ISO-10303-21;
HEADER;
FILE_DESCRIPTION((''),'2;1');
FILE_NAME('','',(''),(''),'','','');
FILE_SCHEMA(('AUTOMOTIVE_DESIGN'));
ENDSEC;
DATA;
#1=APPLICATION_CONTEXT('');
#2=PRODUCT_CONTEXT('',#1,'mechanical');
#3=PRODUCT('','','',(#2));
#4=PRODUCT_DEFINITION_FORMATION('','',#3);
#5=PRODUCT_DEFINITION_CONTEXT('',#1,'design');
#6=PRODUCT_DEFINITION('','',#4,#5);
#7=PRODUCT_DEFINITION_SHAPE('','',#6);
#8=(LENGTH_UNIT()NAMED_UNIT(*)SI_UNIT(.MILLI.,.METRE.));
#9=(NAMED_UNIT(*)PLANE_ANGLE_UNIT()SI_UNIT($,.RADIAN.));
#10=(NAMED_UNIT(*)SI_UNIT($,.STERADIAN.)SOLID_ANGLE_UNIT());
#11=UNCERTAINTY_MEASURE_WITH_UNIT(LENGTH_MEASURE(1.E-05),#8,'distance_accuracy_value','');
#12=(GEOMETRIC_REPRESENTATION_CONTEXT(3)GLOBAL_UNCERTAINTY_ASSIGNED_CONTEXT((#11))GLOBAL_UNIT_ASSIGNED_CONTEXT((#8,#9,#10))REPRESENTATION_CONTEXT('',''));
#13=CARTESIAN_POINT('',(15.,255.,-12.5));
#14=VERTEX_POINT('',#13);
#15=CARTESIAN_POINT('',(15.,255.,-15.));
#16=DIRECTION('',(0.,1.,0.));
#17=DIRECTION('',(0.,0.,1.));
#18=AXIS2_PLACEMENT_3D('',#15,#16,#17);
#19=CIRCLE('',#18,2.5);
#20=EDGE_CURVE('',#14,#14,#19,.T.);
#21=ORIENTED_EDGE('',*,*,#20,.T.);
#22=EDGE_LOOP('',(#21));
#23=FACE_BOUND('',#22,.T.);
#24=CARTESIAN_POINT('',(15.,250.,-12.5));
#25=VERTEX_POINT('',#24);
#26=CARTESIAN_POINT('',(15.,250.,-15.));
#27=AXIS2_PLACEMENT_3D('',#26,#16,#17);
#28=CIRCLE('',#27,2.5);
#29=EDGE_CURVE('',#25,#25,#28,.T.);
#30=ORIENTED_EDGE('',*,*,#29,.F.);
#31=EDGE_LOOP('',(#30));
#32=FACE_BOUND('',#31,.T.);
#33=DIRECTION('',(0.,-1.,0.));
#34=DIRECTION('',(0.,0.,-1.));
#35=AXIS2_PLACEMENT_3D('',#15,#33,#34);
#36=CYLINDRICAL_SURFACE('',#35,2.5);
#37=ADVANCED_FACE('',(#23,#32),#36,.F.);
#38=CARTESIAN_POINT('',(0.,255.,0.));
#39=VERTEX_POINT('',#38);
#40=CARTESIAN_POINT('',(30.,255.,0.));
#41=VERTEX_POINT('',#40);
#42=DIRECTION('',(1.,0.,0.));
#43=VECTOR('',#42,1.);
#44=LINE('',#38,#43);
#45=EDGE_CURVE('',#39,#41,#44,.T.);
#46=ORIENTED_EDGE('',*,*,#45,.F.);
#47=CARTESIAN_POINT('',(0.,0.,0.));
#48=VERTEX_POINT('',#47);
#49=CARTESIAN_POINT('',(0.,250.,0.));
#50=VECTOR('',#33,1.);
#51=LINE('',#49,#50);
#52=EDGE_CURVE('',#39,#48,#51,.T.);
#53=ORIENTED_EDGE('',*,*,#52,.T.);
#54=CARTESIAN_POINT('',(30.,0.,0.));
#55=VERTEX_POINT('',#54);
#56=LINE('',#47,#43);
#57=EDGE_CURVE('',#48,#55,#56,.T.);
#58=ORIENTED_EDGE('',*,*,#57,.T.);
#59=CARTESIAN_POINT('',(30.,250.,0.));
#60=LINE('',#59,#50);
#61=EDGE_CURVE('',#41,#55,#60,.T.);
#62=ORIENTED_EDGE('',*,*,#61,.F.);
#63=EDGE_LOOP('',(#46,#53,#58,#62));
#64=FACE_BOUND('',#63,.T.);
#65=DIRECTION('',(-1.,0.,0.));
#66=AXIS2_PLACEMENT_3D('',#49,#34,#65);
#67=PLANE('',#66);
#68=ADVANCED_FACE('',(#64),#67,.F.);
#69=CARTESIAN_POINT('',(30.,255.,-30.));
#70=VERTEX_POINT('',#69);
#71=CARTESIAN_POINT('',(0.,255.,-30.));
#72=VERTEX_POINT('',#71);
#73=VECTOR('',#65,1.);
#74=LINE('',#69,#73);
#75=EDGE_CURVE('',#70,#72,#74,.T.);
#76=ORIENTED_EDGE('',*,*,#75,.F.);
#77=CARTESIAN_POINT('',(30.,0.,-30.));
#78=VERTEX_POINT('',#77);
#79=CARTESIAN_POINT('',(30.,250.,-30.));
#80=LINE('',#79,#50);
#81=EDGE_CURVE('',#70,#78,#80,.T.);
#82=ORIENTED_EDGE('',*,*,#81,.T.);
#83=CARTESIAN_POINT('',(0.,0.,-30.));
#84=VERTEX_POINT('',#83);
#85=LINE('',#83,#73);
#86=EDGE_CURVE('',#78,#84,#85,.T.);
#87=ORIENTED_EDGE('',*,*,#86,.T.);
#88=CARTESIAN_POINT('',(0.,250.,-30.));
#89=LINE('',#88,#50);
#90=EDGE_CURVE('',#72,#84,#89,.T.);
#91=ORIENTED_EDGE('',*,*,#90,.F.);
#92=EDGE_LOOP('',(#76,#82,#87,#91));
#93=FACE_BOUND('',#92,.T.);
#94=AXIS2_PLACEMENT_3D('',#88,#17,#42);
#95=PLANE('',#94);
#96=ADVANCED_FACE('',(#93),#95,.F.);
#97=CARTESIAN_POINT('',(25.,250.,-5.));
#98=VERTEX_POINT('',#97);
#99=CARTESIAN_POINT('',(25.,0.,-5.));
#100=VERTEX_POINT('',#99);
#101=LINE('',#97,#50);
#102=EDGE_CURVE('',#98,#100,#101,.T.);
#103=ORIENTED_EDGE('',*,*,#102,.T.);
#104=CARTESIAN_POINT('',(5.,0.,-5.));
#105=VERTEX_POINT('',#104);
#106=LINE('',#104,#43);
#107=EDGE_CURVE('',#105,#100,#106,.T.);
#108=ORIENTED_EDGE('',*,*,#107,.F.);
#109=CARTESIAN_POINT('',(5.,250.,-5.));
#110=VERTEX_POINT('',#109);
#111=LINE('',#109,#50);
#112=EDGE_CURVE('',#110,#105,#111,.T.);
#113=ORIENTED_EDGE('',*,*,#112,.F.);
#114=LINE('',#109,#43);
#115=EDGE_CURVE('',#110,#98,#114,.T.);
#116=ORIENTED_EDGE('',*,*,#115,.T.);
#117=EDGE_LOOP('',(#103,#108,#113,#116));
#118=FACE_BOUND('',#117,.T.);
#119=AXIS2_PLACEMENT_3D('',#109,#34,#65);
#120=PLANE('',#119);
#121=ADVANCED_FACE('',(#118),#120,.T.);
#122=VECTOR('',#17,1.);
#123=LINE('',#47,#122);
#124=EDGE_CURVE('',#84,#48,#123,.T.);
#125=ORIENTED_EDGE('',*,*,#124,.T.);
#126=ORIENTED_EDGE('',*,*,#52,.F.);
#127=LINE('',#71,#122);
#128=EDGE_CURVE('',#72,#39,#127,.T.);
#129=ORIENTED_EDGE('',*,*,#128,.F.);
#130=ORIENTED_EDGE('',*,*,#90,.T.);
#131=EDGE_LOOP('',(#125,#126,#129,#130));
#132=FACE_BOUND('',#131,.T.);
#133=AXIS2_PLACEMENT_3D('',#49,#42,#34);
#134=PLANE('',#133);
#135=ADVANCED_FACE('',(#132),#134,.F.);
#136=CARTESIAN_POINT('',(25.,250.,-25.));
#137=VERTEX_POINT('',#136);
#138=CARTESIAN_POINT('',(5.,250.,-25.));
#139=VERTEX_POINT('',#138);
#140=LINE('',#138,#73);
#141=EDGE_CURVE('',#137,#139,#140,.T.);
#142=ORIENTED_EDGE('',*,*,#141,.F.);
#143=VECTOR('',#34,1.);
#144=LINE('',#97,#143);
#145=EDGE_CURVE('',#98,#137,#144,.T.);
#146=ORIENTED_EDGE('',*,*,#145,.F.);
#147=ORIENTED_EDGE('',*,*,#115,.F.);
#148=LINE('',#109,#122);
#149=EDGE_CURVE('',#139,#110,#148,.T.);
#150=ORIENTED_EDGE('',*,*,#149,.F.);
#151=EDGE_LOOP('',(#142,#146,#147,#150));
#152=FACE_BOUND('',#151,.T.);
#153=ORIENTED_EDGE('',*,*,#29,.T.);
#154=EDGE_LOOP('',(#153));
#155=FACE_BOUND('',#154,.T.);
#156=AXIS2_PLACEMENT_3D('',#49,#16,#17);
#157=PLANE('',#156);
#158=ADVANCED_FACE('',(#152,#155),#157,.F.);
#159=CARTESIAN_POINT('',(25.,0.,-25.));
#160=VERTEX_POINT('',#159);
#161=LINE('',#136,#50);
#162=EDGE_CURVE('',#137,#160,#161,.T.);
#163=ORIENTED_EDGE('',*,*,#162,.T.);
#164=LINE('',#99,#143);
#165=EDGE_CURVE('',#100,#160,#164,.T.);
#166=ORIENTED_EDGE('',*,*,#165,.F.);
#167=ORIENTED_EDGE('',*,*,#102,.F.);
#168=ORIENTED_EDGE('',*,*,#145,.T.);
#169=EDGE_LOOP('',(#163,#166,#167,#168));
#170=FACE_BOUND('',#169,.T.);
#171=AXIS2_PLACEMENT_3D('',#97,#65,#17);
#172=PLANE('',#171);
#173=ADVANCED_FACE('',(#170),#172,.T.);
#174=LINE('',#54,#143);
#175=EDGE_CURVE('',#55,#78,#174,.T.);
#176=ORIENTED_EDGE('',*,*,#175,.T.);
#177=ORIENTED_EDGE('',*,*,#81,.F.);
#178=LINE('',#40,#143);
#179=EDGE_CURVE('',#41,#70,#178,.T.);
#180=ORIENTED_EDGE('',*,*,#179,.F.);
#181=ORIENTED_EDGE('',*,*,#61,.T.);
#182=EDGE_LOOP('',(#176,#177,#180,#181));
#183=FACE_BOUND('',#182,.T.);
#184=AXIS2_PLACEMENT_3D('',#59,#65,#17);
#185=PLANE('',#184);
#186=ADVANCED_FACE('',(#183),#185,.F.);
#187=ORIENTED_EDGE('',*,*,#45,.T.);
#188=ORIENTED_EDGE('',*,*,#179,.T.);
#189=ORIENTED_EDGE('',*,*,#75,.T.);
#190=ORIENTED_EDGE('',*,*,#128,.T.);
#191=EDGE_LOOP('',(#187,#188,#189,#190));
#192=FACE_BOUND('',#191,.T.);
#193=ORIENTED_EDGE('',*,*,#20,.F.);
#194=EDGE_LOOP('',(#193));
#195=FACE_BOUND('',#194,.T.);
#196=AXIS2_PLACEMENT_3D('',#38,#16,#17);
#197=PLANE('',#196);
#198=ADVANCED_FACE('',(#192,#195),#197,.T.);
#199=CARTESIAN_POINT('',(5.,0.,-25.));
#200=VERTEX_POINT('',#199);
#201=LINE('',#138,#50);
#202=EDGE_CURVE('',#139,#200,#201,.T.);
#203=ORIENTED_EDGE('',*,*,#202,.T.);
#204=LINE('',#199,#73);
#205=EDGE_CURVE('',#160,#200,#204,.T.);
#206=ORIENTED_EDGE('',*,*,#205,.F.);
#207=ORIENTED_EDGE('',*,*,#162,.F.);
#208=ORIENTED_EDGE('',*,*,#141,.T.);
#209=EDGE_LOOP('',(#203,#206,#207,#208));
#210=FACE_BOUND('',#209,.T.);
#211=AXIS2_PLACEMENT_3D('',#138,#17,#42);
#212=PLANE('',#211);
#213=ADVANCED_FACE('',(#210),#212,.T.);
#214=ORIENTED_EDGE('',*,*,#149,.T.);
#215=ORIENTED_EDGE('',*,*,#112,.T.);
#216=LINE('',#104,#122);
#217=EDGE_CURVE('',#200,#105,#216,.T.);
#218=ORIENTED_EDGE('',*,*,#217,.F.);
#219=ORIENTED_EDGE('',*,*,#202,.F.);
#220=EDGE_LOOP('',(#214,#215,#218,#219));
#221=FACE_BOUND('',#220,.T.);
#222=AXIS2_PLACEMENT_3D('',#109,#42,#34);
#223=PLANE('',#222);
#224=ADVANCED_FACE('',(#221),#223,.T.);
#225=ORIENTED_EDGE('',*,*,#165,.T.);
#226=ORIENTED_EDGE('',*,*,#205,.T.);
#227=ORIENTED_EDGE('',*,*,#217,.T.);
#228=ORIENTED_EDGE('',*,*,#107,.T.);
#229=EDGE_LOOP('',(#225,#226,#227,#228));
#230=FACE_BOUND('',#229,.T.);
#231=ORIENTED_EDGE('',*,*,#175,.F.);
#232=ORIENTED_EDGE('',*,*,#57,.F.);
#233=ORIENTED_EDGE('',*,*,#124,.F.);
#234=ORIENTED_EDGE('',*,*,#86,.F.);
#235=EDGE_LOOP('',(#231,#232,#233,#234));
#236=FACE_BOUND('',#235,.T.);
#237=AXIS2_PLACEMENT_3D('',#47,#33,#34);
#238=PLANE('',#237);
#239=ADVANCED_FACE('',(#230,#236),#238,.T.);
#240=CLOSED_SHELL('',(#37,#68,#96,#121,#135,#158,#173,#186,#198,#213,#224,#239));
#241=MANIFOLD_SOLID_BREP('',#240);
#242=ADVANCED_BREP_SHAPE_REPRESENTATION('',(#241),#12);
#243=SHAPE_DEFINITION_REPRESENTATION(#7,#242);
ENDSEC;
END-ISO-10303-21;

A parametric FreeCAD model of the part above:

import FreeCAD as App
import Part
import Sketcher
Q = App.Units.Quantity

doc = App.newDocument("Part")
body = doc.addObject("PartDesign::Body", "Body")

# Sketch on XZ plane
sketch1 = body.newObject("Sketcher::SketchObject", "Sketch")
sketch1.AttachmentSupport = (doc.getObject("XZ_Plane"), [""])
sketch1.MapMode = "FlatFace"
sketch1.addGeometry([
    Part.LineSegment(App.Vector(0, -30, 0), App.Vector(0, 0, 0)),  # 0
    Part.LineSegment(App.Vector(0, 0, 0), App.Vector(30, 0, 0)),  # 1
    Part.LineSegment(App.Vector(30, 0, 0), App.Vector(30, -30, 0)),  # 2
    Part.LineSegment(App.Vector(30, -30, 0), App.Vector(0, -30, 0)),  # 3
    Part.LineSegment(App.Vector(25, -5, 0), App.Vector(5, -5, 0)),  # 4
    Part.LineSegment(App.Vector(5, -5, 0), App.Vector(5, -25, 0)),  # 5
    Part.LineSegment(App.Vector(5, -25, 0), App.Vector(25, -25, 0)),  # 6
    Part.LineSegment(App.Vector(25, -25, 0), App.Vector(25, -5, 0)),  # 7
], False)
sketch1.addConstraint([
    Sketcher.Constraint("Coincident", 0, 2, 1, 1),
    Sketcher.Constraint("Coincident", 1, 2, 2, 1),
    Sketcher.Constraint("Coincident", 2, 2, 3, 1),
    Sketcher.Constraint("Coincident", 3, 2, 0, 1),
    Sketcher.Constraint("Coincident", 4, 2, 5, 1),
    Sketcher.Constraint("Coincident", 5, 2, 6, 1),
    Sketcher.Constraint("Coincident", 6, 2, 7, 1),
    Sketcher.Constraint("Coincident", 7, 2, 4, 1),
    Sketcher.Constraint("Vertical", 0),
    Sketcher.Constraint("Horizontal", 1),
    Sketcher.Constraint("Vertical", 2),
    Sketcher.Constraint("Horizontal", 3),
    Sketcher.Constraint("Horizontal", 4),
    Sketcher.Constraint("Vertical", 5),
    Sketcher.Constraint("Horizontal", 6),
    Sketcher.Constraint("Vertical", 7),
    Sketcher.Constraint("Coincident", 0, 2, -1, 1),
    Sketcher.Constraint("Equal", 3, 0),
    Sketcher.Constraint("Equal", 6, 5),
    Sketcher.Constraint("DistanceX", 1, 1, 1, 2, Q("30 mm")),
    Sketcher.Constraint("DistanceX", 4, 2, 4, 1, Q("20 mm")),
    Sketcher.Constraint("DistanceX", -1, 1, 4, 2, Q("5 mm")),
    Sketcher.Constraint("DistanceY", 4, 2, -1, 1, Q("5 mm")),
])
pad1 = body.newObject("PartDesign::Pad", "Pad")
pad1.Profile = sketch1
pad1.Length = 250
pad1.Reversed = True

# Sketch on XZ plane
sketch2 = body.newObject("Sketcher::SketchObject", "Sketch001")
sketch2.AttachmentSupport = (doc.getObject("XZ_Plane"), [""])
sketch2.MapMode = "FlatFace"
sketch2.AttachmentOffset = App.Placement(App.Vector(0, 0, -250), App.Rotation())
sketch2.addGeometry([
    Part.LineSegment(App.Vector(0, -30, 0), App.Vector(0, 0, 0)),  # 0
    Part.LineSegment(App.Vector(0, 0, 0), App.Vector(30, 0, 0)),  # 1
    Part.LineSegment(App.Vector(30, 0, 0), App.Vector(30, -30, 0)),  # 2
    Part.LineSegment(App.Vector(30, -30, 0), App.Vector(0, -30, 0)),  # 3
    Part.Circle(App.Vector(15, -15, 0), App.Vector(0, 0, 1), 2.5),  # 4
], False)
sketch2.addConstraint([
    Sketcher.Constraint("Coincident", 0, 2, 1, 1),
    Sketcher.Constraint("Coincident", 1, 2, 2, 1),
    Sketcher.Constraint("Coincident", 2, 2, 3, 1),
    Sketcher.Constraint("Coincident", 3, 2, 0, 1),
    Sketcher.Constraint("Vertical", 0),
    Sketcher.Constraint("Horizontal", 1),
    Sketcher.Constraint("Vertical", 2),
    Sketcher.Constraint("Horizontal", 3),
    Sketcher.Constraint("Coincident", 0, 2, -1, 1),
    Sketcher.Constraint("Equal", 3, 0),
    Sketcher.Constraint("Diameter", 4, Q("5 mm")),
    Sketcher.Constraint("DistanceX", 1, 1, 1, 2, Q("30 mm")),
    Sketcher.Constraint("DistanceX", -1, 1, 4, 3, Q("15 mm")),
    Sketcher.Constraint("DistanceY", 4, 3, -1, 1, Q("15 mm")),
])
pad2 = body.newObject("PartDesign::Pad", "Pad001")
pad2.Profile = sketch2
pad2.Length = 5
pad2.Reversed = True

doc.recompute()
